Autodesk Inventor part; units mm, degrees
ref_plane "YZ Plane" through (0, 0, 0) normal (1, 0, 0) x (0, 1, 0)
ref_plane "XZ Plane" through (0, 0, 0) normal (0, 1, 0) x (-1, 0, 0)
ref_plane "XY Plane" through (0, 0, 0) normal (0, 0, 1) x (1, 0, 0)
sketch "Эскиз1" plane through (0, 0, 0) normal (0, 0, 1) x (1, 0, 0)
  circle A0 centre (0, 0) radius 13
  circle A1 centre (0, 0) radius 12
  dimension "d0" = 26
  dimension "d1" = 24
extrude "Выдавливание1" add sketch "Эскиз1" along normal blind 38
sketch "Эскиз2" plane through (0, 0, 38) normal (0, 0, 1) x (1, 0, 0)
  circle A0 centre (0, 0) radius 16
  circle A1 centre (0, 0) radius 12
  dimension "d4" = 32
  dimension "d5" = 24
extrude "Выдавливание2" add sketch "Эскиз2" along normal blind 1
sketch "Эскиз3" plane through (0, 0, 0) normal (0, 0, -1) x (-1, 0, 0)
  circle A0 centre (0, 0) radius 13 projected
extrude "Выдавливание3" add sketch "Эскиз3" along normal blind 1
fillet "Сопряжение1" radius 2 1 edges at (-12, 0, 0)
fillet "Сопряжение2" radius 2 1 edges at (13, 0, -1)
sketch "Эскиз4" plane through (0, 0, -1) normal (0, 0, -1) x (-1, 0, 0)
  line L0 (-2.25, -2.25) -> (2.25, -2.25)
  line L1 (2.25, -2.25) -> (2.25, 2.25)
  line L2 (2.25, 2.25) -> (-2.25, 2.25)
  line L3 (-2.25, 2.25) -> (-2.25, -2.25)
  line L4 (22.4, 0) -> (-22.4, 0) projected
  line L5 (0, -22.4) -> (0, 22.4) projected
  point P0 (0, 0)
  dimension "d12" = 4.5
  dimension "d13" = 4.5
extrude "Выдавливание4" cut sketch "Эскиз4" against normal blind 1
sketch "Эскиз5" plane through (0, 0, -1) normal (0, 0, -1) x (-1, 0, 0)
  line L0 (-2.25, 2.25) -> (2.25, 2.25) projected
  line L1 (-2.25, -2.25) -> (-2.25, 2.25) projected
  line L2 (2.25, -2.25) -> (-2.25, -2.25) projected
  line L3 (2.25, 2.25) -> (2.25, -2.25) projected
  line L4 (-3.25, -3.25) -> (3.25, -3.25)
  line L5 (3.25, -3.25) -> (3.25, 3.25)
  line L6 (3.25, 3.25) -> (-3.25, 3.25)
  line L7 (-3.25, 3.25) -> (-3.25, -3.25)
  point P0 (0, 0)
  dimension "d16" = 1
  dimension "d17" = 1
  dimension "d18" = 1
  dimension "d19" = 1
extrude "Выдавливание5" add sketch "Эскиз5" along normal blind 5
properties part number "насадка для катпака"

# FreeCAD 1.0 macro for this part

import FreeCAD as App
import Part
import Sketcher

V = App.Vector


def edges_at(feature, points):
    """Names of the edges that pass closest to the given points."""
    edges = feature.Shape.Edges
    near = lambda p: min(range(len(edges)), key=lambda i: edges[i].distToShape(Part.Vertex(*p))[0])
    return sorted({f"Edge{near(p) + 1}" for p in points})


def add_polygon(sketch, points):
    """Adds a closed chain of lines whose ends are joined by coincident constraints."""
    first, n = sketch.GeometryCount, len(points)
    for a, b in zip(points, points[1:] + points[:1]):
        sketch.addGeometry(Part.LineSegment(App.Vector(*a, 0), App.Vector(*b, 0)), False)
    for i in range(n):
        sketch.addConstraint(Sketcher.Constraint("Coincident", first + i, 2, first + (i + 1) % n, 1))

doc = App.newDocument("Part")
params = doc.addObject("Spreadsheet::Sheet", "Params")
for row, (alias, value) in enumerate([
    ("sketch1_diameter", "26 mm"),
    ("sketch1_diameter2", "24 mm"),
    ("pad1_length", "38 mm"),
    ("sketch2_diameter", "32 mm"),
    ("sketch2_diameter2", "24 mm"),
    ("pad2_length", "1 mm"),
    ("sketch3_diameter", "26 mm"),
    ("pad3_length", "1 mm"),
    ("fillet_radius", "2 mm"),
    ("fillet2_radius", "2 mm"),
    ("sketch4_width", "4.5 mm"),
    ("pocket1_length", "1 mm"),
    ("sketch5_width", "6.5 mm"),
    ("pad4_length", "5 mm"),
], start=1):
    params.set(f"A{row}", alias)
    params.set(f"B{row}", "=" + value)
    params.setAlias(f"B{row}", alias)

body = doc.addObject("PartDesign::Body", "Body")

sketch1 = body.newObject("Sketcher::SketchObject", "Sketch")
sketch1.AttachmentSupport = (doc.getObject("XY_Plane"), [""])
sketch1.MapMode = "FlatFace"
sketch1.addGeometry([
    Part.Circle(V(0, 0, 0), V(0, 0, 1), 13),
    Part.Circle(V(0, 0, 0), V(0, 0, 1), 12),
], False)
sketch1.addConstraint([
    Sketcher.Constraint("Coincident", 0, 3, -1, 1),
    Sketcher.Constraint("Coincident", 1, 3, -1, 1),
    Sketcher.Constraint("Diameter", 0, 26.0),
    Sketcher.Constraint("Diameter", 1, 24.0),
])
sketch1.setExpression("Constraints[2]", "Params.sketch1_diameter")
sketch1.setExpression("Constraints[3]", "Params.sketch1_diameter2")
pad1 = body.newObject("PartDesign::Pad", "Pad")
pad1.Profile = sketch1
pad1.setExpression("Length", "Params.pad1_length")

sketch2 = body.newObject("Sketcher::SketchObject", "Sketch001")
sketch2.AttachmentSupport = (doc.getObject("XY_Plane"), [""])
sketch2.MapMode = "FlatFace"
sketch2.AttachmentOffset = App.Placement(V(0, 0, 38), App.Rotation())
sketch2.addGeometry([
    Part.Circle(V(0, 0, 0), V(0, 0, 1), 16),
    Part.Circle(V(0, 0, 0), V(0, 0, 1), 12),
], False)
sketch2.addConstraint([
    Sketcher.Constraint("Coincident", 0, 3, -1, 1),
    Sketcher.Constraint("Coincident", 1, 3, -1, 1),
    Sketcher.Constraint("Diameter", 0, 32.0),
    Sketcher.Constraint("Diameter", 1, 24.0),
])
sketch2.setExpression("Constraints[2]", "Params.sketch2_diameter")
sketch2.setExpression("Constraints[3]", "Params.sketch2_diameter2")
pad2 = body.newObject("PartDesign::Pad", "Pad001")
pad2.Profile = sketch2
pad2.setExpression("Length", "Params.pad2_length")

sketch3 = body.newObject("Sketcher::SketchObject", "Sketch002")
sketch3.AttachmentSupport = (doc.getObject("XY_Plane"), [""])
sketch3.MapMode = "FlatFace"
sketch3.addGeometry(Part.Circle(V(0, 0, 0), V(0, 0, 1), 13), False)
sketch3.addConstraint([
    Sketcher.Constraint("Coincident", 0, 3, -1, 1),
    Sketcher.Constraint("Diameter", 0, 26.0),
])
sketch3.setExpression("Constraints[1]", "Params.sketch3_diameter")
pad3 = body.newObject("PartDesign::Pad", "Pad002")
pad3.Profile = sketch3
pad3.setExpression("Length", "Params.pad3_length")
pad3.Reversed = True
doc.recompute()

fillet = body.newObject("PartDesign::Fillet", "Fillet")
fillet.Base = (pad3, edges_at(pad3, [(-12, 0, 0)]))
fillet.setExpression("Radius", "Params.fillet_radius")
doc.recompute()

fillet2 = body.newObject("PartDesign::Fillet", "Fillet001")
fillet2.Base = (fillet, edges_at(fillet, [(13, 0, -1)]))
fillet2.setExpression("Radius", "Params.fillet2_radius")

sketch4 = body.newObject("Sketcher::SketchObject", "Sketch003")
sketch4.AttachmentSupport = (doc.getObject("XY_Plane"), [""])
sketch4.MapMode = "FlatFace"
sketch4.AttachmentOffset = App.Placement(V(0, 0, -1), App.Rotation())
add_polygon(sketch4, [(2.2, -2.2), (-2.2, -2.2), (-2.2, 2.2), (2.2, 2.2)])
sketch4.addConstraint([
    Sketcher.Constraint("Horizontal", 0),
    Sketcher.Constraint("Vertical", 1),
    Sketcher.Constraint("Horizontal", 2),
    Sketcher.Constraint("Vertical", 3),
    Sketcher.Constraint("Symmetric", 0, 2, 2, 2, -1, 1),
    Sketcher.Constraint("Equal", 2, 1),
    Sketcher.Constraint("DistanceX", 0, 2, 0, 1, 4.5),
])
sketch4.setExpression("Constraints[10]", "Params.sketch4_width")
pocket1 = body.newObject("PartDesign::Pocket", "Pocket")
pocket1.Profile = sketch4
pocket1.setExpression("Length", "Params.pocket1_length")
pocket1.Reversed = True

sketch5 = body.newObject("Sketcher::SketchObject", "Sketch004")
sketch5.AttachmentSupport = (doc.getObject("XY_Plane"), [""])
sketch5.MapMode = "FlatFace"
sketch5.AttachmentOffset = App.Placement(V(0, 0, -1), App.Rotation())
add_polygon(sketch5, [(3.2, 3.2), (3.2, -3.2), (-3.2, -3.2), (-3.2, 3.2)])
add_polygon(sketch5, [(2.2, -2.2), (2.2, 2.2), (-2.2, 2.2), (-2.2, -2.2)])
sketch5.addConstraint([
    Sketcher.Constraint("Vertical", 0),
    Sketcher.Constraint("Horizontal", 1),
    Sketcher.Constraint("Vertical", 2),
    Sketcher.Constraint("Horizontal", 3),
    Sketcher.Constraint("Vertical", 4),
    Sketcher.Constraint("Horizontal", 5),
    Sketcher.Constraint("Vertical", 6),
    Sketcher.Constraint("Horizontal", 7),
    Sketcher.Constraint("Symmetric", 0, 2, 2, 2, -1, 1),
    Sketcher.Constraint("Symmetric", 4, 2, 6, 2, -1, 1),
    Sketcher.Constraint("Equal", 3, 0),
    Sketcher.Constraint("Equal", 7, 4),
    Sketcher.Constraint("DistanceX", 4, 2, 3, 2, 1.0),
    Sketcher.Constraint("DistanceX", 1, 2, 1, 1, 6.5),
])
sketch5.setExpression("Constraints[21]", "Params.sketch5_width")
pad4 = body.newObject("PartDesign::Pad", "Pad003")
pad4.Profile = sketch5
pad4.setExpression("Length", "Params.pad4_length")
pad4.Reversed = True

doc.recompute()
